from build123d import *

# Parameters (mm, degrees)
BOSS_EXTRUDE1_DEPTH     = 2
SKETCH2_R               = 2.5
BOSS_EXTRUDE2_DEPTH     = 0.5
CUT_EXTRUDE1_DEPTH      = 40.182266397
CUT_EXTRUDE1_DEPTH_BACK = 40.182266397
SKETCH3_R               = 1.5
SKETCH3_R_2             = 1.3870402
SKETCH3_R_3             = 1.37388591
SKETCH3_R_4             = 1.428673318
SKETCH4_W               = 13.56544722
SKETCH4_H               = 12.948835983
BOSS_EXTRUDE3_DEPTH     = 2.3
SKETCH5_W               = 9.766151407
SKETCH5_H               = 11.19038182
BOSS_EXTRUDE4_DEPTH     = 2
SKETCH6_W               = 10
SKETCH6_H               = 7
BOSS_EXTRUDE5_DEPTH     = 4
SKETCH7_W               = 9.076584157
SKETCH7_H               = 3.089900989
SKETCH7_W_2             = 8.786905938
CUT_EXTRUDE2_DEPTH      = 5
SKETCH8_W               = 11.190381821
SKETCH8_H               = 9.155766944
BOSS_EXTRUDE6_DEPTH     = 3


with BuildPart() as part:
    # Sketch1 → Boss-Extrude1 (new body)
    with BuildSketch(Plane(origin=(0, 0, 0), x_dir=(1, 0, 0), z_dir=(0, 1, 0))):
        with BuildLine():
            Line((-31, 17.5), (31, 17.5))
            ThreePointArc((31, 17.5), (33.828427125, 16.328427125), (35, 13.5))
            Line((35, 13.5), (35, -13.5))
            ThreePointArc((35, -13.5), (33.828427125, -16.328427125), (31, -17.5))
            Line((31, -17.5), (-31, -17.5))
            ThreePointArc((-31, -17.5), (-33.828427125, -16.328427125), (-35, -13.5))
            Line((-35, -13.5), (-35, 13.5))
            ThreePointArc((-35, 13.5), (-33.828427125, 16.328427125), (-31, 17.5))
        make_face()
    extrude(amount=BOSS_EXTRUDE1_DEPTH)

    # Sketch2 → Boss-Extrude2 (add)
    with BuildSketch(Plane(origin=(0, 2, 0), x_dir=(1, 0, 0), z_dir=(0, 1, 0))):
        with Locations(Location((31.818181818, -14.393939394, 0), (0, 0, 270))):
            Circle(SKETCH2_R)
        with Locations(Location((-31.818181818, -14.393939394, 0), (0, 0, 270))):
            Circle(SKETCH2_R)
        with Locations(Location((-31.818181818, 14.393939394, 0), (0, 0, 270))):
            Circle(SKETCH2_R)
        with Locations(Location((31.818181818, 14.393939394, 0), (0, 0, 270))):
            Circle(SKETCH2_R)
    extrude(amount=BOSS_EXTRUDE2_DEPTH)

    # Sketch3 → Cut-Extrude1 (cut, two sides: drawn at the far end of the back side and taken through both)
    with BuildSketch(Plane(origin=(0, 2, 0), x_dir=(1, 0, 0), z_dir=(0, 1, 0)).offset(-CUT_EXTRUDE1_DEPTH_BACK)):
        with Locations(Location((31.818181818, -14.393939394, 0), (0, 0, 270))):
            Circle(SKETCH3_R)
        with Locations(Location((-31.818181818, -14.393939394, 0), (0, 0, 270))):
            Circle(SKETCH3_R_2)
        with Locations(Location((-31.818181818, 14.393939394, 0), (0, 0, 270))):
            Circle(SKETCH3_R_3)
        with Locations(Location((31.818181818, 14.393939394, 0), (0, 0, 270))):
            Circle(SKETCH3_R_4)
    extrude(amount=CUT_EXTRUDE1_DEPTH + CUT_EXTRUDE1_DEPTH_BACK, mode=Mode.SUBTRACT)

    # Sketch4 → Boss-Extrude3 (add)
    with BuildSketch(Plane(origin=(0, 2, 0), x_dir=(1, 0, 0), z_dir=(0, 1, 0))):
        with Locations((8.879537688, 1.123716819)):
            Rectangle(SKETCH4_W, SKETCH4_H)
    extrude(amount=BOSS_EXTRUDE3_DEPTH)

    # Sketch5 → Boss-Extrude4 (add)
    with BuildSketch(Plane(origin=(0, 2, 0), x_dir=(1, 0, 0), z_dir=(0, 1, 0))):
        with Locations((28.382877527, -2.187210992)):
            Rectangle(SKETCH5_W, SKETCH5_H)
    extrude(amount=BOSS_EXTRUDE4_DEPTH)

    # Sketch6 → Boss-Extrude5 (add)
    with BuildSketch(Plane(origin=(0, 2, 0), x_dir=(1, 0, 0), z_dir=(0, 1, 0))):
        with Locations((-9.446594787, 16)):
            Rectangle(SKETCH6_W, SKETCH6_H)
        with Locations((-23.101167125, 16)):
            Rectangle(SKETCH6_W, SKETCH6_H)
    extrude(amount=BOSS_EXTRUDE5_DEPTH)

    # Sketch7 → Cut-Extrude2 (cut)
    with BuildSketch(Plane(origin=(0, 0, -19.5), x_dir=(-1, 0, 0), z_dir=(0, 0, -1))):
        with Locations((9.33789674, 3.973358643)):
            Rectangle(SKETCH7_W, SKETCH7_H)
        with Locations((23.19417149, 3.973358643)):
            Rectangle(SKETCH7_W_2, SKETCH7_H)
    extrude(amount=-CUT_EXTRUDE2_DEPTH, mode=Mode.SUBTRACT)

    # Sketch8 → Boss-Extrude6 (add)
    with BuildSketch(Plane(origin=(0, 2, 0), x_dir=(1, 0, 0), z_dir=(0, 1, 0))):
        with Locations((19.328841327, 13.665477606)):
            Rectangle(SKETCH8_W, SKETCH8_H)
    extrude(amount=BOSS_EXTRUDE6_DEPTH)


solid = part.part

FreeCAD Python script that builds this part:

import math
import FreeCAD as App
import Part
import Sketcher
from FreeCAD import Vector
Q = App.Units.Quantity


def add_polygon(sketch, points):
    """Adds a closed chain of lines whose ends are joined by coincident constraints."""
    first, n = sketch.GeometryCount, len(points)
    for a, b in zip(points, points[1:] + points[:1]):
        sketch.addGeometry(Part.LineSegment(App.Vector(*a, 0), App.Vector(*b, 0)), False)
    for i in range(n):
        sketch.addConstraint(Sketcher.Constraint("Coincident", first + i, 2, first + (i + 1) % n, 1))

doc = App.newDocument("Part")
params = doc.addObject("Spreadsheet::Sheet", "Params")
for row, (alias, value) in enumerate([
    ("sketch1_radius", "4 mm"),
    ("sketch1_width", "62 mm"),
    ("sketch1_height", "27 mm"),
    ("pad1_length", "2 mm"),
    ("sketch2_diameter", "5 mm"),
    ("pad2_length", "0.5 mm"),
    ("sketch3_diameter", "3 mm"),
    ("pad3_length", "2.3 mm"),
    ("pad4_length", "2 mm"),
    ("sketch6_width", "10 mm"),
    ("sketch6_height", "7 mm"),
    ("pad5_length", "4 mm"),
    ("pocket2_length", "5 mm"),
    ("pad6_length", "3 mm"),
], start=1):
    params.set(f"A{row}", alias)
    params.set(f"B{row}", "=" + value)
    params.setAlias(f"B{row}", alias)

body = doc.addObject("PartDesign::Body", "Body")

sketch1 = body.newObject("Sketcher::SketchObject", "Sketch")
sketch1.AttachmentSupport = (doc.getObject("XZ_Plane"), [""])
sketch1.MapMode = "FlatFace"
sketch1.addGeometry(Part.LineSegment(Vector(31, -17.5, 0), Vector(-31, -17.5, 0)), False)
sketch1.addGeometry(Part.ArcOfCircle(Part.Circle(Vector(-31, -13.5, 0), Vector(0, 0, 1), 4), math.radians(180), math.radians(270)), False)
sketch1.addGeometry(Part.LineSegment(Vector(-35, -13.5, 0), Vector(-35, 13.5, 0)), False)
sketch1.addGeometry(Part.ArcOfCircle(Part.Circle(Vector(-31, 13.5, 0), Vector(0, 0, 1), 4), math.radians(90), math.radians(180)), False)
sketch1.addGeometry(Part.LineSegment(Vector(-31, 17.5, 0), Vector(31, 17.5, 0)), False)
sketch1.addGeometry(Part.ArcOfCircle(Part.Circle(Vector(31, 13.5, 0), Vector(0, 0, 1), 4), math.radians(0), math.radians(90)), False)
sketch1.addGeometry(Part.LineSegment(Vector(35, 13.5, 0), Vector(35, -13.5, 0)), False)
sketch1.addGeometry(Part.ArcOfCircle(Part.Circle(Vector(31, -13.5, 0), Vector(0, 0, 1), 4), math.radians(-90), math.radians(0)), False)
sketch1.addConstraint(Sketcher.Constraint("Tangent", 0, 2, 1, 2))
sketch1.addConstraint(Sketcher.Constraint("Tangent", 1, 1, 2, 1))
sketch1.addConstraint(Sketcher.Constraint("Tangent", 2, 2, 3, 2))
sketch1.addConstraint(Sketcher.Constraint("Tangent", 3, 1, 4, 1))
sketch1.addConstraint(Sketcher.Constraint("Tangent", 4, 2, 5, 2))
sketch1.addConstraint(Sketcher.Constraint("Tangent", 5, 1, 6, 1))
sketch1.addConstraint(Sketcher.Constraint("Tangent", 6, 2, 7, 2))
sketch1.addConstraint(Sketcher.Constraint("Tangent", 7, 1, 0, 1))
sketch1.addConstraint(Sketcher.Constraint("Horizontal", 0))
sketch1.addConstraint(Sketcher.Constraint("Vertical", 2))
sketch1.addConstraint(Sketcher.Constraint("Horizontal", 4))
sketch1.addConstraint(Sketcher.Constraint("Vertical", 6))
sketch1.addConstraint(Sketcher.Constraint("Equal", 1, 3))
sketch1.addConstraint(Sketcher.Constraint("Equal", 3, 5))
sketch1.addConstraint(Sketcher.Constraint("Equal", 5, 7))
sketch1.addConstraint(Sketcher.Constraint("Symmetric", 1, 3, 5, 3, -1, 1))
sketch1.addConstraint(Sketcher.Constraint("Radius", 1, Q("4 mm")))
sketch1.addConstraint(Sketcher.Constraint("DistanceX", 0, 2, 0, 1, Q("62 mm")))
sketch1.addConstraint(Sketcher.Constraint("DistanceY", 2, 1, 2, 2, Q("27 mm")))
sketch1.setExpression("Constraints[16]", "Params.sketch1_radius")
sketch1.setExpression("Constraints[17]", "Params.sketch1_width")
sketch1.setExpression("Constraints[18]", "Params.sketch1_height")
pad1 = body.newObject("PartDesign::Pad", "Pad")
pad1.Profile = sketch1
pad1.setExpression("Length", "Params.pad1_length")
pad1.Reversed = True

sketch2 = body.newObject("Sketcher::SketchObject", "Sketch001")
sketch2.AttachmentSupport = (doc.getObject("XZ_Plane"), [""])
sketch2.MapMode = "FlatFace"
sketch2.AttachmentOffset = App.Placement(Vector(0, 0, -2), App.Rotation())
sketch2.addGeometry(Part.Circle(Vector(31.8, 14.4, 0), Vector(0, 0, 1), 2.5), False)
sketch2.addGeometry(Part.Circle(Vector(-31.8, 14.4, 0), Vector(0, 0, 1), 2.5), False)
sketch2.addGeometry(Part.Circle(Vector(-31.8, -14.4, 0), Vector(0, 0, 1), 2.5), False)
sketch2.addGeometry(Part.Circle(Vector(31.8, -14.4, 0), Vector(0, 0, 1), 2.5), False)
sketch2.addConstraint(Sketcher.Constraint("Equal", 0, 1))
sketch2.addConstraint(Sketcher.Constraint("Equal", 1, 2))
sketch2.addConstraint(Sketcher.Constraint("Equal", 2, 3))
sketch2.addConstraint(Sketcher.Constraint("Symmetric", 0, 3, 2, 3, -1, 1))
sketch2.addConstraint(Sketcher.Constraint("Symmetric", 1, 3, 3, 3, -1, 1))
sketch2.addConstraint(Sketcher.Constraint("Symmetric", 0, 3, 1, 3, -2))
sketch2.addConstraint(Sketcher.Constraint("Diameter", 0, Q("5 mm")))
sketch2.addConstraint(Sketcher.Constraint("DistanceX", -1, 1, 0, 3, Q("31.818182 mm")))
sketch2.addConstraint(Sketcher.Constraint("DistanceY", -1, 1, 0, 3, Q("14.393939 mm")))
sketch2.setExpression("Constraints[6]", "Params.sketch2_diameter")
pad2 = body.newObject("PartDesign::Pad", "Pad001")
pad2.Profile = sketch2
pad2.setExpression("Length", "Params.pad2_length")
pad2.Reversed = True

sketch3 = body.newObject("Sketcher::SketchObject", "Sketch002")
sketch3.AttachmentSupport = (doc.getObject("XZ_Plane"), [""])
sketch3.MapMode = "FlatFace"
sketch3.AttachmentOffset = App.Placement(Vector(0, 0, -2), App.Rotation())
sketch3.addGeometry(Part.Circle(Vector(31.8, 14.4, 0), Vector(0, 0, 1), 1.5), False)
sketch3.addGeometry(Part.Circle(Vector(-31.8, 14.4, 0), Vector(0, 0, 1), 1.4), False)
sketch3.addGeometry(Part.Circle(Vector(-31.8, -14.4, 0), Vector(0, 0, 1), 1.4), False)
sketch3.addGeometry(Part.Circle(Vector(31.8, -14.4, 0), Vector(0, 0, 1), 1.4), False)
sketch3.addConstraint(Sketcher.Constraint("Symmetric", 0, 3, 2, 3, -1, 1))
sketch3.addConstraint(Sketcher.Constraint("Symmetric", 1, 3, 3, 3, -1, 1))
sketch3.addConstraint(Sketcher.Constraint("Symmetric", 0, 3, 1, 3, -2))
sketch3.addConstraint(Sketcher.Constraint("Diameter", 0, Q("3 mm")))
sketch3.addConstraint(Sketcher.Constraint("Diameter", 1, Q("2.77408 mm")))
sketch3.addConstraint(Sketcher.Constraint("Diameter", 2, Q("2.747772 mm")))
sketch3.addConstraint(Sketcher.Constraint("Diameter", 3, Q("2.857347 mm")))
sketch3.addConstraint(Sketcher.Constraint("DistanceX", -1, 1, 0, 3, Q("31.818182 mm")))
sketch3.addConstraint(Sketcher.Constraint("DistanceY", -1, 1, 0, 3, Q("14.393939 mm")))
sketch3.setExpression("Constraints[3]", "Params.sketch3_diameter")
pocket1 = body.newObject("PartDesign::Pocket", "Pocket")
pocket1.Profile = sketch3
pocket1.Type = "ThroughAll"
pocket1.Midplane = True

sketch4 = body.newObject("Sketcher::SketchObject", "Sketch003")
sketch4.AttachmentSupport = (doc.getObject("XZ_Plane"), [""])
sketch4.MapMode = "FlatFace"
sketch4.AttachmentOffset = App.Placement(Vector(0, 0, -2), App.Rotation())
add_polygon(sketch4, [(2, -8), (2, 5), (16, 5), (16, -8)])
sketch4.addConstraint(Sketcher.Constraint("Vertical", 0))
sketch4.addConstraint(Sketcher.Constraint("Horizontal", 1))
sketch4.addConstraint(Sketcher.Constraint("Vertical", 2))
sketch4.addConstraint(Sketcher.Constraint("Horizontal", 3))
sketch4.addConstraint(Sketcher.Constraint("DistanceY", -1, 1, 0, 2, Q("5.350701 mm")))
sketch4.addConstraint(Sketcher.Constraint("DistanceX", 1, 1, 1, 2, Q("13.565447 mm")))
sketch4.addConstraint(Sketcher.Constraint("DistanceY", 0, 1, 0, 2, Q("12.948836 mm")))
sketch4.addConstraint(Sketcher.Constraint("DistanceX", -1, 1, 1, 2, Q("15.662261 mm")))
pad3 = body.newObject("PartDesign::Pad", "Pad002")
pad3.Profile = sketch4
pad3.setExpression("Length", "Params.pad3_length")
pad3.Reversed = True

sketch5 = body.newObject("Sketcher::SketchObject", "Sketch004")
sketch5.AttachmentSupport = (doc.getObject("XZ_Plane"), [""])
sketch5.MapMode = "FlatFace"
sketch5.AttachmentOffset = App.Placement(Vector(0, 0, -2), App.Rotation())
add_polygon(sketch5, [(23, -3), (23, 8), (33, 8), (33, -3)])
sketch5.addConstraint(Sketcher.Constraint("Vertical", 0))
sketch5.addConstraint(Sketcher.Constraint("Horizontal", 1))
sketch5.addConstraint(Sketcher.Constraint("Vertical", 2))
sketch5.addConstraint(Sketcher.Constraint("Horizontal", 3))
sketch5.addConstraint(Sketcher.Constraint("DistanceX", 1, 1, 1, 2, Q("9.766151 mm")))
sketch5.addConstraint(Sketcher.Constraint("DistanceY", 0, 1, 0, 2, Q("11.190382 mm")))
sketch5.addConstraint(Sketcher.Constraint("DistanceX", -1, 1, 0, 2, Q("23.499802 mm")))
sketch5.addConstraint(Sketcher.Constraint("DistanceY", -1, 1, 0, 2, Q("7.782402 mm")))
pad4 = body.newObject("PartDesign::Pad", "Pad003")
pad4.Profile = sketch5
pad4.setExpression("Length", "Params.pad4_length")
pad4.Reversed = True

sketch6 = body.newObject("Sketcher::SketchObject", "Sketch005")
sketch6.AttachmentSupport = (doc.getObject("XZ_Plane"), [""])
sketch6.MapMode = "FlatFace"
sketch6.AttachmentOffset = App.Placement(Vector(0, 0, -2), App.Rotation())
add_polygon(sketch6, [(-14, -20), (-14, -12), (-4, -12), (-4, -20)])
add_polygon(sketch6, [(-28, -20), (-28, -12), (-18, -12), (-18, -20)])
sketch6.addConstraint(Sketcher.Constraint("Vertical", 0))
sketch6.addConstraint(Sketcher.Constraint("Horizontal", 1))
sketch6.addConstraint(Sketcher.Constraint("Vertical", 2))
sketch6.addConstraint(Sketcher.Constraint("Horizontal", 3))
sketch6.addConstraint(Sketcher.Constraint("Vertical", 4))
sketch6.addConstraint(Sketcher.Constraint("Horizontal", 5))
sketch6.addConstraint(Sketcher.Constraint("Vertical", 6))
sketch6.addConstraint(Sketcher.Constraint("Horizontal", 7))
sketch6.addConstraint(Sketcher.Constraint("Horizontal", 1, 2, 4, 2))
sketch6.addConstraint(Sketcher.Constraint("Horizontal", 3, 2, 6, 2))
sketch6.addConstraint(Sketcher.Constraint("Equal", 3, 5))
sketch6.addConstraint(Sketcher.Constraint("DistanceX", 1, 1, 1, 2, Q("10 mm")))
sketch6.addConstraint(Sketcher.Constraint("DistanceY", 0, 1, 0, 2, Q("7 mm")))
sketch6.addConstraint(Sketcher.Constraint("DistanceY", 0, 2, -1, 1, Q("12.5 mm")))
sketch6.addConstraint(Sketcher.Constraint("DistanceX", 0, 2, -1, 1, Q("14.446595 mm")))
sketch6.addConstraint(Sketcher.Constraint("DistanceX", 4, 2, -1, 1, Q("28.101167 mm")))
sketch6.setExpression("Constraints[19]", "Params.sketch6_width")
sketch6.setExpression("Constraints[20]", "Params.sketch6_height")
pad5 = body.newObject("PartDesign::Pad", "Pad004")
pad5.Profile = sketch6
pad5.setExpression("Length", "Params.pad5_length")
pad5.Reversed = True

sketch7 = body.newObject("Sketcher::SketchObject", "Sketch006")
sketch7.AttachmentSupport = (doc.getObject("XY_Plane"), [""])
sketch7.MapMode = "FlatFace"
sketch7.AttachmentOffset = App.Placement(Vector(0, 0, -19.5), App.Rotation())
add_polygon(sketch7, [(-4.8, 5.5), (-4.8, 2.4), (-13.9, 2.4), (-13.9, 5.5)])
add_polygon(sketch7, [(-18.8, 5.5), (-18.8, 2.4), (-27.6, 2.4), (-27.6, 5.5)])
sketch7.addConstraint(Sketcher.Constraint("Vertical", 0))
sketch7.addConstraint(Sketcher.Constraint("Horizontal", 1))
sketch7.addConstraint(Sketcher.Constraint("Vertical", 2))
sketch7.addConstraint(Sketcher.Constraint("Horizontal", 3))
sketch7.addConstraint(Sketcher.Constraint("Vertical", 4))
sketch7.addConstraint(Sketcher.Constraint("Horizontal", 5))
sketch7.addConstraint(Sketcher.Constraint("Vertical", 6))
sketch7.addConstraint(Sketcher.Constraint("Horizontal", 7))
sketch7.addConstraint(Sketcher.Constraint("Horizontal", 1, 2, 4, 2))
sketch7.addConstraint(Sketcher.Constraint("Horizontal", 3, 2, 6, 2))
sketch7.addConstraint(Sketcher.Constraint("DistanceY", 0, 2, 0, 1, Q("3.089901 mm")))
sketch7.addConstraint(Sketcher.Constraint("DistanceX", 1, 2, 1, 1, Q("9.076584 mm")))
sketch7.addConstraint(Sketcher.Constraint("DistanceX", 5, 2, 5, 1, Q("8.786906 mm")))
sketch7.addConstraint(Sketcher.Constraint("DistanceY", -1, 1, 0, 2, Q("2.428408 mm")))
sketch7.addConstraint(Sketcher.Constraint("DistanceX", 1, 2, -1, 1, Q("13.876189 mm")))
sketch7.addConstraint(Sketcher.Constraint("DistanceX", 4, 2, -1, 1, Q("18.800719 mm")))
pocket2 = body.newObject("PartDesign::Pocket", "Pocket001")
pocket2.Profile = sketch7
pocket2.setExpression("Length", "Params.pocket2_length")
pocket2.Reversed = True

sketch8 = body.newObject("Sketcher::SketchObject", "Sketch007")
sketch8.AttachmentSupport = (doc.getObject("XZ_Plane"), [""])
sketch8.MapMode = "FlatFace"
sketch8.AttachmentOffset = App.Placement(Vector(0, 0, -2), App.Rotation())
add_polygon(sketch8, [(14, -18), (14, -9), (25, -9), (25, -18)])
sketch8.addConstraint(Sketcher.Constraint("Vertical", 0))
sketch8.addConstraint(Sketcher.Constraint("Horizontal", 1))
sketch8.addConstraint(Sketcher.Constraint("Vertical", 2))
sketch8.addConstraint(Sketcher.Constraint("Horizontal", 3))
sketch8.addConstraint(Sketcher.Constraint("DistanceX", 1, 1, 1, 2, Q("11.190382 mm")))
sketch8.addConstraint(Sketcher.Constraint("DistanceY", 0, 1, 0, 2, Q("9.155767 mm")))
sketch8.addConstraint(Sketcher.Constraint("DistanceX", -1, 1, 0, 2, Q("13.73365 mm")))
sketch8.addConstraint(Sketcher.Constraint("DistanceY", 2, 2, -1, 1, Q("18.243361 mm")))
pad6 = body.newObject("PartDesign::Pad", "Pad005")
pad6.Profile = sketch8
pad6.setExpression("Length", "Params.pad6_length")
pad6.Reversed = True

doc.recompute()
